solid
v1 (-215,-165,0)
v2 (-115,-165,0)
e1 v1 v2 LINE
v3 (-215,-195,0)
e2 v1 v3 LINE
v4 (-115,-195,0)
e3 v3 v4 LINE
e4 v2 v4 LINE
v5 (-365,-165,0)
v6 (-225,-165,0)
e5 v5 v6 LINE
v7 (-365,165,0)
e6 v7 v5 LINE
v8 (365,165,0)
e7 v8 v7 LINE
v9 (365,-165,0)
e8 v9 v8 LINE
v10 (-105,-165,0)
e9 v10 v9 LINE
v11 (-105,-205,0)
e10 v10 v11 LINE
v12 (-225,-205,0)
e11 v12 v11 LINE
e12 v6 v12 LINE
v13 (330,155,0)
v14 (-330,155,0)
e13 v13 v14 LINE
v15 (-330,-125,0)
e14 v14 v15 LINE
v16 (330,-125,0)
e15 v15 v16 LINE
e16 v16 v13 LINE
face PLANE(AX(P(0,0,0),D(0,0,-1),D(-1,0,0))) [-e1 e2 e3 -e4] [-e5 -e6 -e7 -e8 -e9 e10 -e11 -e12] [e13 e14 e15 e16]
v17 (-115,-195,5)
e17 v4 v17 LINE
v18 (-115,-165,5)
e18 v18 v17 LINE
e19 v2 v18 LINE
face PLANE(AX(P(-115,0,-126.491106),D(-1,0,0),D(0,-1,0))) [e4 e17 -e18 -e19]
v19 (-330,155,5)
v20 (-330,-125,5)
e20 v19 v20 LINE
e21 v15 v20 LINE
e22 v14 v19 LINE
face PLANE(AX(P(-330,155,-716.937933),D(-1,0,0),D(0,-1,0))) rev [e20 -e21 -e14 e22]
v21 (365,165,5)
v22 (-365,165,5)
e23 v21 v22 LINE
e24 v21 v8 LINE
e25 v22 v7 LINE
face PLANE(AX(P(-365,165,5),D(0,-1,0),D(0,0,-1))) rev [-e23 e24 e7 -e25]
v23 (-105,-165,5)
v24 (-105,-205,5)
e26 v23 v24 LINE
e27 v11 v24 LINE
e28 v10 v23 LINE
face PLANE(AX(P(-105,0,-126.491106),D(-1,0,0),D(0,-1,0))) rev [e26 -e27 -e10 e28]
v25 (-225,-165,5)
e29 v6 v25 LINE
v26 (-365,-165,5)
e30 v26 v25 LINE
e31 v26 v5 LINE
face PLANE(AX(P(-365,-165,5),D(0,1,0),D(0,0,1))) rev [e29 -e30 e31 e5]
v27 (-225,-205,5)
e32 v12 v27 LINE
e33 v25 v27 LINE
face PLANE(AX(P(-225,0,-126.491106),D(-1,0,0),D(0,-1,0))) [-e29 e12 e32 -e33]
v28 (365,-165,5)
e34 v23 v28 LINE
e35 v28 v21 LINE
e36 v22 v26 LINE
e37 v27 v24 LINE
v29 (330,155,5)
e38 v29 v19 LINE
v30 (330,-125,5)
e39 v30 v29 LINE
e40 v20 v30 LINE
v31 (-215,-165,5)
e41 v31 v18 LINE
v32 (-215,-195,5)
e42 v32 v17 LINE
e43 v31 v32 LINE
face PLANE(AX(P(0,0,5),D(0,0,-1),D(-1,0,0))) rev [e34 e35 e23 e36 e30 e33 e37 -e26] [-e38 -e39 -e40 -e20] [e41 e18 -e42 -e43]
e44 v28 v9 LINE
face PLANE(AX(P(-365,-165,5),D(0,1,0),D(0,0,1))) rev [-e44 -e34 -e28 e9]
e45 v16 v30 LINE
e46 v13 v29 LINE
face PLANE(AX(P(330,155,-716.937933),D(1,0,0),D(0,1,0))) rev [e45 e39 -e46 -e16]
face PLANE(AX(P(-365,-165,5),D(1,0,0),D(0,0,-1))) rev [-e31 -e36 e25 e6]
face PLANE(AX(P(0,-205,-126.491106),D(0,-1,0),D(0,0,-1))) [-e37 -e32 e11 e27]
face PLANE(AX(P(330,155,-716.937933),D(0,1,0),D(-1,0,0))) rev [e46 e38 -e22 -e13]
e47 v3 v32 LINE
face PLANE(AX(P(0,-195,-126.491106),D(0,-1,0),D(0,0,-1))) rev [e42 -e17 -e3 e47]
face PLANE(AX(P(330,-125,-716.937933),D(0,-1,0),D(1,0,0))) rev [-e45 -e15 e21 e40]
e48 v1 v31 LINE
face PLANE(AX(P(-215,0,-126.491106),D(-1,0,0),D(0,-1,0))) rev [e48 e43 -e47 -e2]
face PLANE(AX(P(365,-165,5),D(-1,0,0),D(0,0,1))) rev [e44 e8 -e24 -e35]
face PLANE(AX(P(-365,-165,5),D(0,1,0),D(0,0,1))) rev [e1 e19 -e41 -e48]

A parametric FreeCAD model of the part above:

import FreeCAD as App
import Part
import Sketcher

doc = App.newDocument("Part")
body = doc.addObject("PartDesign::Body", "Body")

sketch1 = body.newObject("Sketcher::SketchObject", "Sketch")
sketch1.AttachmentSupport = (doc.getObject("XY_Plane"), [""])
sketch1.MapMode = "FlatFace"
sketch1.addGeometry(Part.LineSegment(App.Vector(-365, 165, 0), App.Vector(-365, -165, 0)), False)
sketch1.addGeometry(Part.LineSegment(App.Vector(-365, -165, 0), App.Vector(365, -165, 0)), False)
sketch1.addGeometry(Part.LineSegment(App.Vector(365, -165, 0), App.Vector(365, 165, 0)), False)
sketch1.addGeometry(Part.LineSegment(App.Vector(365, 165, 0), App.Vector(-365, 165, 0)), False)
sketch1.addConstraint(Sketcher.Constraint("Coincident", 0, 2, 1, 1))
sketch1.addConstraint(Sketcher.Constraint("Coincident", 1, 2, 2, 1))
sketch1.addConstraint(Sketcher.Constraint("Coincident", 2, 2, 3, 1))
sketch1.addConstraint(Sketcher.Constraint("Coincident", 3, 2, 0, 1))
sketch1.addConstraint(Sketcher.Constraint("Vertical", 0))
sketch1.addConstraint(Sketcher.Constraint("Horizontal", 1))
sketch1.addConstraint(Sketcher.Constraint("Vertical", 2))
sketch1.addConstraint(Sketcher.Constraint("Horizontal", 3))
sketch1.addConstraint(Sketcher.Constraint("Symmetric", 0, 2, 2, 2, -1, 1))
sketch1.addConstraint(Sketcher.Constraint("DistanceX", 1, 1, 1, 2, 730.0))
sketch1.addConstraint(Sketcher.Constraint("DistanceY", 0, 2, 0, 1, 330.0))
pad1 = body.newObject("PartDesign::Pad", "Pad")
pad1.Profile = sketch1
pad1.Length = 5

sketch2 = body.newObject("Sketcher::SketchObject", "Sketch001")
sketch2.AttachmentSupport = (doc.getObject("XY_Plane"), [""])
sketch2.MapMode = "FlatFace"
sketch2.AttachmentOffset = App.Placement(App.Vector(0, 0, 5), App.Rotation())
sketch2.addGeometry(Part.LineSegment(App.Vector(-330, 155, 0), App.Vector(-330, -125, 0)), False)
sketch2.addGeometry(Part.LineSegment(App.Vector(-330, -125, 0), App.Vector(330, -125, 0)), False)
sketch2.addGeometry(Part.LineSegment(App.Vector(330, -125, 0), App.Vector(330, 155, 0)), False)
sketch2.addGeometry(Part.LineSegment(App.Vector(330, 155, 0), App.Vector(-330, 155, 0)), False)
sketch2.addConstraint(Sketcher.Constraint("Coincident", 0, 2, 1, 1))
sketch2.addConstraint(Sketcher.Constraint("Coincident", 1, 2, 2, 1))
sketch2.addConstraint(Sketcher.Constraint("Coincident", 2, 2, 3, 1))
sketch2.addConstraint(Sketcher.Constraint("Coincident", 3, 2, 0, 1))
sketch2.addConstraint(Sketcher.Constraint("Vertical", 0))
sketch2.addConstraint(Sketcher.Constraint("Horizontal", 1))
sketch2.addConstraint(Sketcher.Constraint("Vertical", 2))
sketch2.addConstraint(Sketcher.Constraint("Horizontal", 3))
sketch2.addConstraint(Sketcher.Constraint("DistanceX", 1, 1, 1, 2, 660.0))
sketch2.addConstraint(Sketcher.Constraint("DistanceY", 0, 2, 0, 1, 280.0))
sketch2.addConstraint(Sketcher.Constraint("DistanceX", 0, 2, -1, 1, 330.0))
sketch2.addConstraint(Sketcher.Constraint("DistanceY", 0, 2, -1, 1, 125.0))
pocket1 = body.newObject("PartDesign::Pocket", "Pocket")
pocket1.Profile = sketch2
pocket1.Length = 5

sketch3 = body.newObject("Sketcher::SketchObject", "Sketch002")
sketch3.AttachmentSupport = (doc.getObject("XY_Plane"), [""])
sketch3.MapMode = "FlatFace"
sketch3.AttachmentOffset = App.Placement(App.Vector(0, 0, 5), App.Rotation())
sketch3.addGeometry(Part.LineSegment(App.Vector(-215, -165, 0), App.Vector(-225, -165, 0)), False)
sketch3.addGeometry(Part.LineSegment(App.Vector(-225, -165, 0), App.Vector(-225, -205, 0)), False)
sketch3.addGeometry(Part.LineSegment(App.Vector(-225, -205, 0), App.Vector(-105, -205, 0)), False)
sketch3.addGeometry(Part.LineSegment(App.Vector(-105, -205, 0), App.Vector(-105, -165, 0)), False)
sketch3.addGeometry(Part.LineSegment(App.Vector(-105, -165, 0), App.Vector(-115, -165, 0)), False)
sketch3.addGeometry(Part.LineSegment(App.Vector(-115, -165, 0), App.Vector(-115, -195, 0)), False)
sketch3.addGeometry(Part.LineSegment(App.Vector(-115, -195, 0), App.Vector(-215, -195, 0)), False)
sketch3.addGeometry(Part.LineSegment(App.Vector(-215, -195, 0), App.Vector(-215, -165, 0)), False)
sketch3.addConstraint(Sketcher.Constraint("Coincident", 0, 2, 1, 1))
sketch3.addConstraint(Sketcher.Constraint("Coincident", 1, 2, 2, 1))
sketch3.addConstraint(Sketcher.Constraint("Coincident", 2, 2, 3, 1))
sketch3.addConstraint(Sketcher.Constraint("Coincident", 3, 2, 4, 1))
sketch3.addConstraint(Sketcher.Constraint("Coincident", 4, 2, 5, 1))
sketch3.addConstraint(Sketcher.Constraint("Coincident", 5, 2, 6, 1))
sketch3.addConstraint(Sketcher.Constraint("Coincident", 6, 2, 7, 1))
sketch3.addConstraint(Sketcher.Constraint("Coincident", 7, 2, 0, 1))
sketch3.addConstraint(Sketcher.Constraint("Horizontal", 0))
sketch3.addConstraint(Sketcher.Constraint("Vertical", 1))
sketch3.addConstraint(Sketcher.Constraint("Horizontal", 2))
sketch3.addConstraint(Sketcher.Constraint("Vertical", 3))
sketch3.addConstraint(Sketcher.Constraint("Horizontal", 4))
sketch3.addConstraint(Sketcher.Constraint("Vertical", 5))
sketch3.addConstraint(Sketcher.Constraint("Horizontal", 6))
sketch3.addConstraint(Sketcher.Constraint("Vertical", 7))
sketch3.addConstraint(Sketcher.Constraint("Horizontal", 0, 2, 3, 2))
sketch3.addConstraint(Sketcher.Constraint("Equal", 0, 4))
sketch3.addConstraint(Sketcher.Constraint("DistanceX", 0, 2, 0, 1, 10.0))
sketch3.addConstraint(Sketcher.Constraint("DistanceX", 2, 1, 2, 2, 120.0))
sketch3.addConstraint(Sketcher.Constraint("DistanceY", 1, 2, 1, 1, 40.0))
sketch3.addConstraint(Sketcher.Constraint("DistanceY", 5, 2, 5, 1, 30.0))
sketch3.addConstraint(Sketcher.Constraint("DistanceX", 0, 2, -1, 1, 225.0))
sketch3.addConstraint(Sketcher.Constraint("DistanceY", 0, 2, -1, 1, 165.0))
pad2 = body.newObject("PartDesign::Pad", "Pad001")
pad2.Profile = sketch3
pad2.Length = 5
pad2.Reversed = True

doc.recompute()
